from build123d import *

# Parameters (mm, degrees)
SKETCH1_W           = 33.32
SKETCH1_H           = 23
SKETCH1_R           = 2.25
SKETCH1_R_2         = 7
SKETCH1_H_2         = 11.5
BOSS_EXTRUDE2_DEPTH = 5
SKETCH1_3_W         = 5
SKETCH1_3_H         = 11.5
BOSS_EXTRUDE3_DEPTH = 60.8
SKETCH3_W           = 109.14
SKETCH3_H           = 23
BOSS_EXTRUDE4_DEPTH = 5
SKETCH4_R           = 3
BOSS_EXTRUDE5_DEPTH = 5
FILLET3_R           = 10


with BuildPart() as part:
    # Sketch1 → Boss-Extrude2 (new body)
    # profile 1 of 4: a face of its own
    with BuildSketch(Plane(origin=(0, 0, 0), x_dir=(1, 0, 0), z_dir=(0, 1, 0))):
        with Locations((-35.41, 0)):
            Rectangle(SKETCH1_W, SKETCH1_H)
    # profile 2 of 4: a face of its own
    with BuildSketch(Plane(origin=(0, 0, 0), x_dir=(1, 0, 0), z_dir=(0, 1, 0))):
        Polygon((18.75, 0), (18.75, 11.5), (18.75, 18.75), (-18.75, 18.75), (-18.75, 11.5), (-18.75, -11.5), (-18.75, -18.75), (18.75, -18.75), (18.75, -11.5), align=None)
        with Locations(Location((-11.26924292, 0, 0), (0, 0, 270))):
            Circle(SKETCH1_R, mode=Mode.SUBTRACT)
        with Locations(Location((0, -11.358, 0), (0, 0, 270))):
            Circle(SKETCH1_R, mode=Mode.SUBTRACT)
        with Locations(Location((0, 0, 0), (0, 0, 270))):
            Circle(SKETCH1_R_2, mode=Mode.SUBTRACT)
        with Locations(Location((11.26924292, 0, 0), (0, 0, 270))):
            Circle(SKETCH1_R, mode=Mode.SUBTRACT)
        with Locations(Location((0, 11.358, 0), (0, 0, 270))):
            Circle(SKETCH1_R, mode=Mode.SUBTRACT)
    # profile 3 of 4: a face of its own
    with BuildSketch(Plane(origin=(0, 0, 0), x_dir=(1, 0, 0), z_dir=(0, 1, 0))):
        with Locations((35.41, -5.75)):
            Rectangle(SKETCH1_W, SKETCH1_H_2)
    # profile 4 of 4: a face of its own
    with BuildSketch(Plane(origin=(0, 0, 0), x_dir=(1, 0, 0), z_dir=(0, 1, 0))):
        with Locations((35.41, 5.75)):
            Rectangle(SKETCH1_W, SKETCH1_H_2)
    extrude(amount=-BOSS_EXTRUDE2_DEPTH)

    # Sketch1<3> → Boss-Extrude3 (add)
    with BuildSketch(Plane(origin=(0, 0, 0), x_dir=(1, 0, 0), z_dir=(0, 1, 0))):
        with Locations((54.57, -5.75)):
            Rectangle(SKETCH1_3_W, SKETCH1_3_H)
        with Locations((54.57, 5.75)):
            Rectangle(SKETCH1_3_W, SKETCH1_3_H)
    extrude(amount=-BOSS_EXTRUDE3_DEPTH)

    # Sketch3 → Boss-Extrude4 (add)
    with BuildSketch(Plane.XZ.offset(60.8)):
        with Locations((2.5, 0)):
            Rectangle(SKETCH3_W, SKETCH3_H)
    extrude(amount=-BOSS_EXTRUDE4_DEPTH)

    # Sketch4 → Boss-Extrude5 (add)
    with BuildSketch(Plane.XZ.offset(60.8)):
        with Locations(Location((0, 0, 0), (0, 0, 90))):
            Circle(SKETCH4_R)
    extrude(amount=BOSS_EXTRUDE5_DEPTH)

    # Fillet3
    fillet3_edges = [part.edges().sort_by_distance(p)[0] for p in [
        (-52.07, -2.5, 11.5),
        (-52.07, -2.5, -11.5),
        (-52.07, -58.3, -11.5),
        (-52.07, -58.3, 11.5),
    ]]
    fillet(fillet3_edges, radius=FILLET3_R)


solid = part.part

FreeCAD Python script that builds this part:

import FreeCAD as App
import Part
import Sketcher

V = App.Vector
Q = App.Units.Quantity


def edges_at(feature, points):
    """Names of the edges that pass closest to the given points."""
    edges = feature.Shape.Edges
    near = lambda p: min(range(len(edges)), key=lambda i: edges[i].distToShape(Part.Vertex(*p))[0])
    return sorted({f"Edge{near(p) + 1}" for p in points})


def add_polygon(sketch, points):
    """Adds a closed chain of lines whose ends are joined by coincident constraints."""
    first, n = sketch.GeometryCount, len(points)
    for a, b in zip(points, points[1:] + points[:1]):
        sketch.addGeometry(Part.LineSegment(App.Vector(*a, 0), App.Vector(*b, 0)), False)
    for i in range(n):
        sketch.addConstraint(Sketcher.Constraint("Coincident", first + i, 2, first + (i + 1) % n, 1))

doc = App.newDocument("Part")
body = doc.addObject("PartDesign::Body", "Body")

sketch1 = body.newObject("Sketcher::SketchObject", "Sketch")
sketch1.AttachmentSupport = (doc.getObject("XZ_Plane"), [""])
sketch1.MapMode = "FlatFace"
add_polygon(sketch1, [(-52.1, -11.5), (-52.1, 11.5), (-18.8, 11.5), (-18.8, 18.8), (18.8, 18.8), (18.8, 11.5), (52.1, 11.5), (52.1, -11.5), (18.8, -11.5), (18.8, -18.8), (-18.8, -18.8), (-18.8, -11.5)])
sketch1.addGeometry(Part.Circle(V(0, -11.4, 0), V(0, 0, 1), 2.2), False)
sketch1.addGeometry(Part.Circle(V(0, 11.4, 0), V(0, 0, 1), 2.2), False)
sketch1.addGeometry(Part.Circle(V(-11.3, 0, 0), V(0, 0, 1), 2.2), False)
sketch1.addGeometry(Part.Circle(V(0, 0, 0), V(0, 0, 1), 7), False)
sketch1.addGeometry(Part.Circle(V(11.3, 0, 0), V(0, 0, 1), 2.2), False)
sketch1.addConstraint(Sketcher.Constraint("Vertical", 0))
sketch1.addConstraint(Sketcher.Constraint("Horizontal", 1))
sketch1.addConstraint(Sketcher.Constraint("Vertical", 2))
sketch1.addConstraint(Sketcher.Constraint("Horizontal", 3))
sketch1.addConstraint(Sketcher.Constraint("Vertical", 4))
sketch1.addConstraint(Sketcher.Constraint("Horizontal", 5))
sketch1.addConstraint(Sketcher.Constraint("Vertical", 6))
sketch1.addConstraint(Sketcher.Constraint("Horizontal", 7))
sketch1.addConstraint(Sketcher.Constraint("Vertical", 8))
sketch1.addConstraint(Sketcher.Constraint("Horizontal", 9))
sketch1.addConstraint(Sketcher.Constraint("Vertical", 10))
sketch1.addConstraint(Sketcher.Constraint("Horizontal", 11))
sketch1.addConstraint(Sketcher.Constraint("Coincident", 15, 3, -1, 1))
sketch1.addConstraint(Sketcher.Constraint("Equal", 12, 13))
sketch1.addConstraint(Sketcher.Constraint("Equal", 13, 14))
sketch1.addConstraint(Sketcher.Constraint("Equal", 14, 16))
sketch1.addConstraint(Sketcher.Constraint("Symmetric", 12, 3, 13, 3, -1, 1))
sketch1.addConstraint(Sketcher.Constraint("Symmetric", 14, 3, 16, 3, -1, 1))
sketch1.addConstraint(Sketcher.Constraint("Symmetric", 0, 2, 6, 2, -1, 1))
sketch1.addConstraint(Sketcher.Constraint("Symmetric", 2, 2, 8, 2, -1, 1))
sketch1.addConstraint(Sketcher.Constraint("Symmetric", 4, 2, 10, 2, -1, 1))
sketch1.addConstraint(Sketcher.Constraint("Symmetric", 1, 2, 4, 2, -2))
sketch1.addConstraint(Sketcher.Constraint("PointOnObject", 12, 3, -2))
sketch1.addConstraint(Sketcher.Constraint("PointOnObject", 14, 3, -1))
sketch1.addConstraint(Sketcher.Constraint("Diameter", 15, Q("14 mm")))
sketch1.addConstraint(Sketcher.Constraint("Diameter", 12, Q("4.5 mm")))
sketch1.addConstraint(Sketcher.Constraint("DistanceY", 0, 1, 0, 2, Q("23 mm")))
sketch1.addConstraint(Sketcher.Constraint("DistanceX", 3, 1, 3, 2, Q("37.5 mm")))
sketch1.addConstraint(Sketcher.Constraint("DistanceX", 1, 1, 1, 2, Q("33.32 mm")))
sketch1.addConstraint(Sketcher.Constraint("DistanceY", 2, 1, 2, 2, Q("7.25 mm")))
sketch1.addConstraint(Sketcher.Constraint("DistanceY", 12, 3, -1, 1, Q("11.358 mm")))
sketch1.addConstraint(Sketcher.Constraint("DistanceX", 14, 3, -1, 1, Q("11.269243 mm")))
pad1 = body.newObject("PartDesign::Pad", "Pad")
pad1.Profile = sketch1
pad1.Length = 5

sketch2 = body.newObject("Sketcher::SketchObject", "Sketch001")
sketch2.AttachmentSupport = (doc.getObject("XZ_Plane"), [""])
sketch2.MapMode = "FlatFace"
add_polygon(sketch2, [(52, 12), (57, 12), (57, -12), (52, -12)])
sketch2.addConstraint(Sketcher.Constraint("Horizontal", 0))
sketch2.addConstraint(Sketcher.Constraint("Vertical", 1))
sketch2.addConstraint(Sketcher.Constraint("Horizontal", 2))
sketch2.addConstraint(Sketcher.Constraint("Vertical", 3))
sketch2.addConstraint(Sketcher.Constraint("DistanceX", 0, 1, 0, 2, Q("5 mm")))
sketch2.addConstraint(Sketcher.Constraint("DistanceY", 1, 2, 1, 1, Q("23 mm")))
sketch2.addConstraint(Sketcher.Constraint("DistanceY", -1, 1, 0, 2, Q("11.5 mm")))
sketch2.addConstraint(Sketcher.Constraint("DistanceX", -1, 1, 0, 2, Q("57.07 mm")))
pad2 = body.newObject("PartDesign::Pad", "Pad001")
pad2.Profile = sketch2
pad2.Length = 60.8

sketch3 = body.newObject("Sketcher::SketchObject", "Sketch002")
sketch3.AttachmentSupport = (doc.getObject("XZ_Plane"), [""])
sketch3.MapMode = "FlatFace"
sketch3.AttachmentOffset = App.Placement(V(0, 0, 60.8), App.Rotation())
add_polygon(sketch3, [(-52, 12), (-52, -12), (57, -12), (57, 12)])
sketch3.addConstraint(Sketcher.Constraint("Vertical", 0))
sketch3.addConstraint(Sketcher.Constraint("Horizontal", 1))
sketch3.addConstraint(Sketcher.Constraint("Vertical", 2))
sketch3.addConstraint(Sketcher.Constraint("Horizontal", 3))
sketch3.addConstraint(Sketcher.Constraint("DistanceY", 0, 2, 0, 1, Q("23 mm")))
sketch3.addConstraint(Sketcher.Constraint("DistanceX", 1, 1, 1, 2, Q("109.14 mm")))
sketch3.addConstraint(Sketcher.Constraint("DistanceY", 0, 2, -1, 1, Q("11.5 mm")))
sketch3.addConstraint(Sketcher.Constraint("DistanceX", 0, 2, -1, 1, Q("52.07 mm")))
pad3 = body.newObject("PartDesign::Pad", "Pad002")
pad3.Profile = sketch3
pad3.Length = 5
pad3.Reversed = True

sketch4 = body.newObject("Sketcher::SketchObject", "Sketch003")
sketch4.AttachmentSupport = (doc.getObject("XZ_Plane"), [""])
sketch4.MapMode = "FlatFace"
sketch4.AttachmentOffset = App.Placement(V(0, 0, 60.8), App.Rotation())
sketch4.addGeometry(Part.Circle(V(0, 0, 0), V(0, 0, 1), 3), False)
sketch4.addConstraint(Sketcher.Constraint("Coincident", 0, 3, -1, 1))
sketch4.addConstraint(Sketcher.Constraint("Diameter", 0, Q("6 mm")))
pad4 = body.newObject("PartDesign::Pad", "Pad003")
pad4.Profile = sketch4
pad4.Length = 5
doc.recompute()

fillet = body.newObject("PartDesign::Fillet", "Fillet")
fillet.Base = (pad4, edges_at(pad4, [
    (-52.07, -2.5, 11.5),
    (-52.07, -2.5, -11.5),
    (-52.07, -58.3, -11.5),
    (-52.07, -58.3, 11.5),
]))
fillet.Radius = 10

doc.recompute()
